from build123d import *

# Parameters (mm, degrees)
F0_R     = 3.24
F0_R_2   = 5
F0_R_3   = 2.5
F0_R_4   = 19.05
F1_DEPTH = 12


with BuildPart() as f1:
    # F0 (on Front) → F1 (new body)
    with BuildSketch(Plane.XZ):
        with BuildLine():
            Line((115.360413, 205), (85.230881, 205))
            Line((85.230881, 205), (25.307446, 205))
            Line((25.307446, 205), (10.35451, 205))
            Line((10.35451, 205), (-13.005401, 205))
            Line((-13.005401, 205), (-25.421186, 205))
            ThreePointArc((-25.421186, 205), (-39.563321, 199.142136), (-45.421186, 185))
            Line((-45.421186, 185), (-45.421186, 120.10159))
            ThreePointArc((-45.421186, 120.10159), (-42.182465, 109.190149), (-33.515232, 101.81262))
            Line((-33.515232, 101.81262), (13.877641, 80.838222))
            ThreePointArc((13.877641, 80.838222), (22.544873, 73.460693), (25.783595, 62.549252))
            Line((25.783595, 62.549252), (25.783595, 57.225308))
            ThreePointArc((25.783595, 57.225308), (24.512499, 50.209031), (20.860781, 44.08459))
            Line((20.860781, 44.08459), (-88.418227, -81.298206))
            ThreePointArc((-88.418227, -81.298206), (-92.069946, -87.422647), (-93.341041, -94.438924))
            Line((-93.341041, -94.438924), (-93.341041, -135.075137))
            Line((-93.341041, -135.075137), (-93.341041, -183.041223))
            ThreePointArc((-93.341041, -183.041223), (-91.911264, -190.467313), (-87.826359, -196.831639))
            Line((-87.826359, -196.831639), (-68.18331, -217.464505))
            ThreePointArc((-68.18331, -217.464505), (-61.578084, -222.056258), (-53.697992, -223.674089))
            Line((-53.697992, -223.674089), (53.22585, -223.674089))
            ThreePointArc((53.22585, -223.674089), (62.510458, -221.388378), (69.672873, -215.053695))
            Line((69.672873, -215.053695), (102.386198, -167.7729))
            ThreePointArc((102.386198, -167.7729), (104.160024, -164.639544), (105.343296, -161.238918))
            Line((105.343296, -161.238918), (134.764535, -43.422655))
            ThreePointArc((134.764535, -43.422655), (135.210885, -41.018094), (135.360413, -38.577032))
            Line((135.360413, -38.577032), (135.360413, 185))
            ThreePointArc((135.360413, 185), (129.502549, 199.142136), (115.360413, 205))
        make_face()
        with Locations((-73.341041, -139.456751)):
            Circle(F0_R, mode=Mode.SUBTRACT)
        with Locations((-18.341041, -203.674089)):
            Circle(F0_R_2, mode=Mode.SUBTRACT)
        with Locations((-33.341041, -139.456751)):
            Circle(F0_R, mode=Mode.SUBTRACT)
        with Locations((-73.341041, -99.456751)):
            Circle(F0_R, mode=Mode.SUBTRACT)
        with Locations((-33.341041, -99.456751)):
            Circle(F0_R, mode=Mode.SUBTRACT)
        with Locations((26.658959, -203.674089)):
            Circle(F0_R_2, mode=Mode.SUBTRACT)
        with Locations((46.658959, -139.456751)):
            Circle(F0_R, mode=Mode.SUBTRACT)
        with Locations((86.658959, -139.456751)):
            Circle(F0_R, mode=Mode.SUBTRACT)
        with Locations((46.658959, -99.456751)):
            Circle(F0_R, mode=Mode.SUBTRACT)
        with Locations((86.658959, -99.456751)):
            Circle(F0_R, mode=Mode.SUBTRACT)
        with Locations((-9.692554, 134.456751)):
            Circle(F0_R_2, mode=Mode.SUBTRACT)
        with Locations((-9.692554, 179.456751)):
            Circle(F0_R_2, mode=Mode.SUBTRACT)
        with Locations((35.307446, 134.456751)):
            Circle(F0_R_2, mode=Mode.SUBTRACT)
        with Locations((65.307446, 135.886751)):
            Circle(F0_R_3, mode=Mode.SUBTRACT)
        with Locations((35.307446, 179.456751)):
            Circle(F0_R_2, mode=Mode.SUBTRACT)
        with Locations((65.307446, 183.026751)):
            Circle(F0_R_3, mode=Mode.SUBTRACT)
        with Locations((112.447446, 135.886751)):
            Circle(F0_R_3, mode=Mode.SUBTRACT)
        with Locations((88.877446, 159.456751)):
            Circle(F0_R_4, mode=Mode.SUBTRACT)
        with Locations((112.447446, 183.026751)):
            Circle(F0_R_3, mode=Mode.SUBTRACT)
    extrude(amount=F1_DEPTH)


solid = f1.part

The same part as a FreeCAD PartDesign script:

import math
import FreeCAD as App
import Part
import Sketcher
from FreeCAD import Vector
Q = App.Units.Quantity

doc = App.newDocument("Part")
params = doc.addObject("Spreadsheet::Sheet", "Params")
for row, (alias, value) in enumerate([
    ("sketch1_diameter", "10 mm"),
    ("sketch1_diameter2", "5 mm"),
    ("sketch1_radius", "20 mm"),
    ("sketch1_diameter3", "38.1 mm"),
    ("sketch1_diameter4", "6.48 mm"),
    ("pad1_length", "12 mm"),
], start=1):
    params.set(f"A{row}", alias)
    params.set(f"B{row}", "=" + value)
    params.setAlias(f"B{row}", alias)

body = doc.addObject("PartDesign::Body", "Body")

sketch1 = body.newObject("Sketcher::SketchObject", "Sketch")
sketch1.AttachmentSupport = (doc.getObject("XZ_Plane"), [""])
sketch1.MapMode = "FlatFace"
sketch1.addGeometry([
    Part.LineSegment(Vector(115.4, 205, 0), Vector(-25.4, 205, 0)),
    Part.ArcOfCircle(Part.Circle(Vector(-25.4, 185, 0), Vector(0, 0, 1), 20), math.radians(90), math.radians(180)),
    Part.LineSegment(Vector(-45.4, 185, 0), Vector(-45.4, 120.1, 0)),
    Part.ArcOfCircle(Part.Circle(Vector(-25.4, 120.1, 0), Vector(0, 0, 1), 20), math.radians(180), math.radians(246)),
    Part.LineSegment(Vector(-33.5, 101.8, 0), Vector(13.9, 80.8, 0)),
    Part.ArcOfCircle(Part.Circle(Vector(5.8, 62.5, 0), Vector(0, 0, 1), 20), math.radians(0), math.radians(66)),
    Part.LineSegment(Vector(25.8, 62.5, 0), Vector(25.8, 57.2, 0)),
    Part.ArcOfCircle(Part.Circle(Vector(5.8, 57.2, 0), Vector(0, 0, 1), 20), math.radians(-41), math.radians(0)),
    Part.LineSegment(Vector(20.9, 44.1, 0), Vector(-88.4, -81.3, 0)),
    Part.ArcOfCircle(Part.Circle(Vector(-73.3, -94.4, 0), Vector(0, 0, 1), 20), math.radians(139), math.radians(180)),
    Part.LineSegment(Vector(-93.3, -94.4, 0), Vector(-93.3, -183, 0)),
    Part.ArcOfCircle(Part.Circle(Vector(-73.3, -183, 0), Vector(0, 0, 1), 20), math.radians(-180), math.radians(-136)),
    Part.LineSegment(Vector(-87.8, -196.8, 0), Vector(-68.2, -217.5, 0)),
    Part.ArcOfCircle(Part.Circle(Vector(-53.7, -203.7, 0), Vector(0, 0, 1), 20), math.radians(-136), math.radians(-90)),
    Part.LineSegment(Vector(-53.7, -223.7, 0), Vector(53.2, -223.7, 0)),
    Part.ArcOfCircle(Part.Circle(Vector(53.2, -203.7, 0), Vector(0, 0, 1), 20), math.radians(-90), math.radians(-35)),
    Part.LineSegment(Vector(69.7, -215.1, 0), Vector(102.4, -167.8, 0)),
    Part.ArcOfCircle(Part.Circle(Vector(85.9, -156.4, 0), Vector(0, 0, 1), 20), math.radians(-35), math.radians(-14)),
    Part.LineSegment(Vector(105.3, -161.2, 0), Vector(134.8, -43.4, 0)),
    Part.ArcOfCircle(Part.Circle(Vector(115.4, -38.6, 0), Vector(0, 0, 1), 20), math.radians(-14.02), math.radians(0)),
    Part.LineSegment(Vector(135.4, -38.6, 0), Vector(135.4, 185, 0)),
    Part.ArcOfCircle(Part.Circle(Vector(115.4, 185, 0), Vector(0, 0, 1), 20), math.radians(0), math.radians(90)),
    Part.Circle(Vector(-73.3, -139.5, 0), Vector(0, 0, 1), 3.2),
    Part.Circle(Vector(-33.3, -139.5, 0), Vector(0, 0, 1), 3.2),
    Part.Circle(Vector(-18.3, -203.7, 0), Vector(0, 0, 1), 5),
    Part.Circle(Vector(-73.3, -99.5, 0), Vector(0, 0, 1), 3.2),
    Part.Circle(Vector(-33.3, -99.5, 0), Vector(0, 0, 1), 3.2),
    Part.Circle(Vector(26.7, -203.7, 0), Vector(0, 0, 1), 5),
    Part.Circle(Vector(46.7, -139.5, 0), Vector(0, 0, 1), 3.2),
    Part.Circle(Vector(86.7, -139.5, 0), Vector(0, 0, 1), 3.2),
    Part.Circle(Vector(46.7, -99.5, 0), Vector(0, 0, 1), 3.2),
    Part.Circle(Vector(86.7, -99.5, 0), Vector(0, 0, 1), 3.2),
    Part.Circle(Vector(-9.7, 134.5, 0), Vector(0, 0, 1), 5),
    Part.Circle(Vector(-9.7, 179.5, 0), Vector(0, 0, 1), 5),
    Part.Circle(Vector(35.3, 134.5, 0), Vector(0, 0, 1), 5),
    Part.Circle(Vector(65.3, 135.9, 0), Vector(0, 0, 1), 2.5),
    Part.Circle(Vector(35.3, 179.5, 0), Vector(0, 0, 1), 5),
    Part.Circle(Vector(65.3, 183, 0), Vector(0, 0, 1), 2.5),
    Part.Circle(Vector(112.4, 135.9, 0), Vector(0, 0, 1), 2.5),
    Part.Circle(Vector(88.9, 159.5, 0), Vector(0, 0, 1), 19.1),
    Part.Circle(Vector(112.4, 183, 0), Vector(0, 0, 1), 2.5),
], False)
sketch1.addConstraint([
    Sketcher.Constraint("Tangent", 0, 2, 1, 1),
    Sketcher.Constraint("Tangent", 1, 2, 2, 1),
    Sketcher.Constraint("Tangent", 2, 2, 3, 1),
    Sketcher.Constraint("Tangent", 3, 2, 4, 1),
    Sketcher.Constraint("Tangent", 4, 2, 5, 2),
    Sketcher.Constraint("Tangent", 5, 1, 6, 1),
    Sketcher.Constraint("Tangent", 6, 2, 7, 2),
    Sketcher.Constraint("Tangent", 7, 1, 8, 1),
    Sketcher.Constraint("Tangent", 8, 2, 9, 1),
    Sketcher.Constraint("Tangent", 9, 2, 10, 1),
    Sketcher.Constraint("Tangent", 10, 2, 11, 1),
    Sketcher.Constraint("Tangent", 11, 2, 12, 1),
    Sketcher.Constraint("Tangent", 12, 2, 13, 1),
    Sketcher.Constraint("Tangent", 13, 2, 14, 1),
    Sketcher.Constraint("Tangent", 14, 2, 15, 1),
    Sketcher.Constraint("Tangent", 15, 2, 16, 1),
    Sketcher.Constraint("Tangent", 16, 2, 17, 1),
    Sketcher.Constraint("Tangent", 17, 2, 18, 1),
    Sketcher.Constraint("Tangent", 18, 2, 19, 1),
    Sketcher.Constraint("Tangent", 19, 2, 20, 1),
    Sketcher.Constraint("Tangent", 20, 2, 21, 1),
    Sketcher.Constraint("Tangent", 21, 2, 0, 1),
    Sketcher.Constraint("Horizontal", 0),
    Sketcher.Constraint("Vertical", 2),
    Sketcher.Constraint("Vertical", 6),
    Sketcher.Constraint("Vertical", 10),
    Sketcher.Constraint("Horizontal", 14),
    Sketcher.Constraint("Vertical", 20),
    Sketcher.Constraint("Equal", 1, 5),
    Sketcher.Constraint("Equal", 5, 11),
    Sketcher.Constraint("Equal", 11, 13),
    Sketcher.Constraint("Equal", 13, 15),
    Sketcher.Constraint("Equal", 3, 21),
    Sketcher.Constraint("Equal", 22, 23),
    Sketcher.Constraint("Equal", 23, 25),
    Sketcher.Constraint("Equal", 25, 26),
    Sketcher.Constraint("Equal", 24, 27),
    Sketcher.Constraint("Equal", 26, 28),
    Sketcher.Constraint("Equal", 28, 29),
    Sketcher.Constraint("Equal", 29, 30),
    Sketcher.Constraint("Equal", 30, 31),
    Sketcher.Constraint("Equal", 27, 32),
    Sketcher.Constraint("Equal", 32, 33),
    Sketcher.Constraint("Equal", 33, 34),
    Sketcher.Constraint("Equal", 34, 36),
    Sketcher.Constraint("Equal", 35, 37),
    Sketcher.Constraint("Equal", 37, 38),
    Sketcher.Constraint("Equal", 38, 40),
    Sketcher.Constraint("Horizontal", 1, 3, 21, 3),
    Sketcher.Constraint("Horizontal", 22, 3, 23, 3),
    Sketcher.Constraint("Horizontal", 25, 3, 26, 3),
    Sketcher.Constraint("Horizontal", 24, 3, 27, 3),
    Sketcher.Constraint("Horizontal", 23, 3, 28, 3),
    Sketcher.Constraint("Horizontal", 28, 3, 29, 3),
    Sketcher.Constraint("Horizontal", 26, 3, 30, 3),
    Sketcher.Constraint("Horizontal", 30, 3, 31, 3),
    Sketcher.Constraint("Horizontal", 32, 3, 34, 3),
    Sketcher.Constraint("Horizontal", 33, 3, 36, 3),
    Sketcher.Constraint("Horizontal", 35, 3, 38, 3),
    Sketcher.Constraint("Horizontal", 37, 3, 40, 3),
    Sketcher.Constraint("Vertical", 22, 3, 25, 3),
    Sketcher.Constraint("Vertical", 23, 3, 26, 3),
    Sketcher.Constraint("Vertical", 28, 3, 30, 3),
    Sketcher.Constraint("Vertical", 29, 3, 31, 3),
    Sketcher.Constraint("Vertical", 32, 3, 33, 3),
    Sketcher.Constraint("Vertical", 34, 3, 36, 3),
    Sketcher.Constraint("Vertical", 35, 3, 37, 3),
    Sketcher.Constraint("Vertical", 38, 3, 40, 3),
    Sketcher.Constraint("Diameter", 24, Q("10 mm")),
    Sketcher.Constraint("Diameter", 35, Q("5 mm")),
    Sketcher.Constraint("Radius", 1, Q("20 mm")),
    Sketcher.Constraint("Diameter", 39, Q("38.1 mm")),
    Sketcher.Constraint("Diameter", 22, Q("6.48 mm")),
    Sketcher.Constraint("DistanceY", -1, 1, 1, 3, Q("185 mm")),
    Sketcher.Constraint("DistanceX", 22, 3, 23, 3, Q("40 mm")),
    Sketcher.Constraint("DistanceX", 23, 3, 24, 3, Q("15 mm")),
    Sketcher.Constraint("DistanceY", 22, 3, 25, 3, Q("40 mm")),
    Sketcher.Constraint("DistanceX", 24, 3, 27, 3, Q("45 mm")),
    Sketcher.Constraint("DistanceX", 27, 3, 28, 3, Q("20 mm")),
    Sketcher.Constraint("DistanceX", 28, 3, 29, 3, Q("40 mm")),
    Sketcher.Constraint("DistanceY", 32, 3, 33, 3, Q("45 mm")),
    Sketcher.Constraint("DistanceX", 32, 3, 34, 3, Q("45 mm")),
    Sketcher.Constraint("DistanceX", 34, 3, 35, 3, Q("30 mm")),
    Sketcher.Constraint("DistanceY", 39, 3, 36, 3, Q("20 mm")),
    Sketcher.Constraint("DistanceX", 9, 2, 25, 3, Q("20 mm")),
    Sketcher.Constraint("DistanceY", 13, 2, 24, 3, Q("20 mm")),
    Sketcher.Constraint("Radius", 17, Q("20.000021 mm")),
    Sketcher.Constraint("DistanceY", 34, 3, 35, 3, Q("1.43 mm")),
    Sketcher.Constraint("DistanceY", 36, 3, 37, 3, Q("3.57 mm")),
    Sketcher.Constraint("DistanceX", 35, 3, 38, 3, Q("47.14 mm")),
    Sketcher.Constraint("DistanceX", 39, 3, 38, 3, Q("23.57 mm")),
    Sketcher.Constraint("DistanceX", 0, 2, 0, 1, Q("140.781599 mm")),
    Sketcher.Constraint("DistanceY", 10, 2, 10, 1, Q("88.602299 mm")),
    Sketcher.Constraint("Radius", 7, Q("20.000006 mm")),
    Sketcher.Constraint("Radius", 9, Q("19.999992 mm")),
    Sketcher.Constraint("Radius", 19, Q("19.999947 mm")),
    Sketcher.Constraint("DistanceY", 2, 2, 2, 1, Q("64.89841 mm")),
    Sketcher.Constraint("DistanceY", 20, 1, 20, 2, Q("223.577032 mm")),
    Sketcher.Constraint("DistanceY", 16, 2, -1, 1, Q("167.7729 mm")),
    Sketcher.Constraint("DistanceY", 15, 3, 17, 3, Q("47.280799 mm")),
    Sketcher.Constraint("DistanceY", 5, 3, 32, 3, Q("71.9075 mm")),
    Sketcher.Constraint("Distance", 4, Q("51.826728 mm")),
    Sketcher.Constraint("Distance", 12, Q("28.487972 mm")),
    Sketcher.Constraint("DistanceX", 14, 1, 14, 2, Q("106.923842 mm")),
    Sketcher.Constraint("DistanceY", 6, 2, 6, 1, Q("5.323944 mm")),
    Sketcher.Constraint("DistanceX", 3, 3, -1, 1, Q("25.421188 mm")),
    Sketcher.Constraint("DistanceY", -1, 1, 5, 3, Q("62.549251 mm")),
    Sketcher.Constraint("DistanceX", 9, 3, -1, 1, Q("73.341049 mm")),
    Sketcher.Constraint("DistanceY", 9, 3, -1, 1, Q("94.438921 mm")),
    Sketcher.Constraint("DistanceX", 13, 3, -1, 1, Q("53.69799 mm")),
    Sketcher.Constraint("DistanceY", 22, 3, -1, 1, Q("139.456751 mm")),
    Sketcher.Constraint("DistanceX", 1, 3, 32, 3, Q("15.728632 mm")),
])
sketch1.setExpression("Constraints[68]", "Params.sketch1_diameter")
sketch1.setExpression("Constraints[69]", "Params.sketch1_diameter2")
sketch1.setExpression("Constraints[70]", "Params.sketch1_radius")
sketch1.setExpression("Constraints[71]", "Params.sketch1_diameter3")
sketch1.setExpression("Constraints[72]", "Params.sketch1_diameter4")
pad1 = body.newObject("PartDesign::Pad", "Pad")
pad1.Profile = sketch1
pad1.setExpression("Length", "Params.pad1_length")

doc.recompute()
